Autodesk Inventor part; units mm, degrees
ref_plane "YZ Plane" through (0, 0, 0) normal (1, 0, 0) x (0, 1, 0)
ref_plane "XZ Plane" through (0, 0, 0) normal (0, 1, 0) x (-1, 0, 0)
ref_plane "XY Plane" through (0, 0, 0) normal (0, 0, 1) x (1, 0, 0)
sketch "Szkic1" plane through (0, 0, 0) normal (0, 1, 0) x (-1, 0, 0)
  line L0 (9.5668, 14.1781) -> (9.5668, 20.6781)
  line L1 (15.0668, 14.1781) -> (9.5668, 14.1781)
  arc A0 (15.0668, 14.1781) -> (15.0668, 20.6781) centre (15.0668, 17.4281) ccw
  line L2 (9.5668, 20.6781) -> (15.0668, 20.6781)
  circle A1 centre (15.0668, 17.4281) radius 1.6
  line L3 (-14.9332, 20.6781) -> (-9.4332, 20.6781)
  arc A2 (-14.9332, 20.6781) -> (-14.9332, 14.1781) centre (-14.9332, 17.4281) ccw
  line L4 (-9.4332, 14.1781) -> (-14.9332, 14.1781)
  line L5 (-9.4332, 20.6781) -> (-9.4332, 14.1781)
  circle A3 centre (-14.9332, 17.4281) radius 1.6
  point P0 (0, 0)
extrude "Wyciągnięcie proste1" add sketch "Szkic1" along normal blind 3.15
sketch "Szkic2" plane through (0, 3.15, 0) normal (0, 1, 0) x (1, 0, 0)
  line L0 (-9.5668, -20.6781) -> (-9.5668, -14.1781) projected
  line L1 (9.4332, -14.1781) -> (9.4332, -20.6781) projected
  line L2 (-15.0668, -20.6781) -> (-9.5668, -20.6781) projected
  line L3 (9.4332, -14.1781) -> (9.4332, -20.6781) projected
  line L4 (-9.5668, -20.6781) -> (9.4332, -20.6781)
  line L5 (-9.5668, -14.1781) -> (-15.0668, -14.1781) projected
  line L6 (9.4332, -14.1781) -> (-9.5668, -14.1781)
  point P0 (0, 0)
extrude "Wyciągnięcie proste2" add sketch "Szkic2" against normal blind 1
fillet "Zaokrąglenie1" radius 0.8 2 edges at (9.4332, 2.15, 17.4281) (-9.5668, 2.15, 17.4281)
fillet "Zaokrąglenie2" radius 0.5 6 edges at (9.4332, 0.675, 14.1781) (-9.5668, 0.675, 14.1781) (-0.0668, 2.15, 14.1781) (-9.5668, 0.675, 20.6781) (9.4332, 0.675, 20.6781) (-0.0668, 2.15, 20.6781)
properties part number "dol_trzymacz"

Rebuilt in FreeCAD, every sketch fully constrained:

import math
import FreeCAD as App
import Part
import Sketcher
from FreeCAD import Vector
Q = App.Units.Quantity


def edges_at(feature, points):
    """Names of the edges that pass closest to the given points."""
    edges = feature.Shape.Edges
    near = lambda p: min(range(len(edges)), key=lambda i: edges[i].distToShape(Part.Vertex(*p))[0])
    return sorted({f"Edge{near(p) + 1}" for p in points})


def add_polygon(sketch, points):
    """Adds a closed chain of lines whose ends are joined by coincident constraints."""
    first, n = sketch.GeometryCount, len(points)
    for a, b in zip(points, points[1:] + points[:1]):
        sketch.addGeometry(Part.LineSegment(App.Vector(*a, 0), App.Vector(*b, 0)), False)
    for i in range(n):
        sketch.addConstraint(Sketcher.Constraint("Coincident", first + i, 2, first + (i + 1) % n, 1))

doc = App.newDocument("Part")
body = doc.addObject("PartDesign::Body", "Body")
body.AllowCompound = True

# Sketch on XZ plane
sketch1 = body.newObject("Sketcher::SketchObject", "Sketch")
sketch1.AttachmentSupport = (doc.getObject("XZ_Plane"), [""])
sketch1.MapMode = "FlatFace"
sketch1.addGeometry([
    Part.LineSegment(Vector(-9.6, 20.7, 0), Vector(-9.6, 14.2, 0)),  # 0
    Part.LineSegment(Vector(-9.6, 14.2, 0), Vector(-15.1, 14.2, 0)),  # 1
    Part.ArcOfCircle(Part.Circle(Vector(-15.1, 17.4, 0), Vector(0, 0, 1), 3.2), math.radians(90), math.radians(270)),  # 2
    Part.LineSegment(Vector(-15.1, 20.7, 0), Vector(-9.6, 20.7, 0)),  # 3
    Part.Circle(Vector(-15.1, 17.4, 0), Vector(0, 0, 1), 1.6),  # 4
    Part.LineSegment(Vector(9.4, 20.7, 0), Vector(14.9, 20.7, 0)),  # 5
    Part.ArcOfCircle(Part.Circle(Vector(14.9, 17.4, 0), Vector(0, 0, 1), 3.2), math.radians(-90), math.radians(90)),  # 6
    Part.LineSegment(Vector(14.9, 14.2, 0), Vector(9.4, 14.2, 0)),  # 7
    Part.LineSegment(Vector(9.4, 14.2, 0), Vector(9.4, 20.7, 0)),  # 8
    Part.Circle(Vector(14.9, 17.4, 0), Vector(0, 0, 1), 1.6),  # 9
], False)
sketch1.addConstraint([
    Sketcher.Constraint("Coincident", 0, 2, 1, 1),
    Sketcher.Constraint("Tangent", 1, 2, 2, 2),
    Sketcher.Constraint("Tangent", 2, 1, 3, 1),
    Sketcher.Constraint("Coincident", 3, 2, 0, 1),
    Sketcher.Constraint("Tangent", 5, 2, 6, 2),
    Sketcher.Constraint("Tangent", 6, 1, 7, 1),
    Sketcher.Constraint("Coincident", 7, 2, 8, 1),
    Sketcher.Constraint("Coincident", 8, 2, 5, 1),
    Sketcher.Constraint("Vertical", 0),
    Sketcher.Constraint("Horizontal", 1),
    Sketcher.Constraint("Horizontal", 3),
    Sketcher.Constraint("Horizontal", 5),
    Sketcher.Constraint("Horizontal", 7),
    Sketcher.Constraint("Vertical", 8),
    Sketcher.Constraint("Coincident", 4, 3, 2, 3),
    Sketcher.Constraint("Coincident", 9, 3, 6, 3),
    Sketcher.Constraint("Equal", 2, 6),
    Sketcher.Constraint("Equal", 4, 9),
    Sketcher.Constraint("Horizontal", 4, 3, 6, 3),
    Sketcher.Constraint("Equal", 3, 5),
    Sketcher.Constraint("Diameter", 4, Q("3.2 mm")),
    Sketcher.Constraint("Radius", 2, Q("3.25 mm")),
    Sketcher.Constraint("DistanceX", 1, 2, 1, 1, Q("5.5 mm")),
    Sketcher.Constraint("DistanceX", 2, 3, 6, 3, Q("30 mm")),
    Sketcher.Constraint("DistanceY", -1, 1, 2, 3, Q("17.428 mm")),
    Sketcher.Constraint("DistanceX", 2, 3, -1, 1, Q("15.0668 mm")),
])
pad1 = body.newObject("PartDesign::Pad", "Pad")
pad1.Profile = sketch1
pad1.Length = 3.15
pad1.Reversed = True

# Sketch on XZ plane
sketch2 = body.newObject("Sketcher::SketchObject", "Sketch001")
sketch2.AttachmentSupport = (doc.getObject("XZ_Plane"), [""])
sketch2.MapMode = "FlatFace"
sketch2.AttachmentOffset = App.Placement(Vector(0, 0, -3.15), App.Rotation())
add_polygon(sketch2, [(-10, 14), (-10, 21), (9, 21), (9, 14)])  # lines 0-3
sketch2.addConstraint([
    Sketcher.Constraint("Vertical", 0),
    Sketcher.Constraint("Horizontal", 1),
    Sketcher.Constraint("Vertical", 2),
    Sketcher.Constraint("Horizontal", 3),
    Sketcher.Constraint("DistanceX", 1, 1, 1, 2, Q("19 mm")),
    Sketcher.Constraint("DistanceY", 0, 1, 0, 2, Q("6.5 mm")),
    Sketcher.Constraint("DistanceY", -1, 1, 0, 2, Q("20.678 mm")),
    Sketcher.Constraint("DistanceX", 0, 2, -1, 1, Q("9.5668 mm")),
])
pad2 = body.newObject("PartDesign::Pad", "Pad001")
pad2.Profile = sketch2
pad2.Length = 1
doc.recompute()

fillet = body.newObject("PartDesign::Fillet", "Fillet")
fillet.Base = (pad2, edges_at(pad2, [(9.433, 2.15, 17.428), (-9.567, 2.15, 17.428)]))
fillet.Radius = 0.8
doc.recompute()

fillet2 = body.newObject("PartDesign::Fillet", "Fillet001")
fillet2.Base = (fillet, edges_at(fillet, [
    (9.433, 0.675, 14.178),
    (-9.567, 0.675, 14.178),
    (-0.067, 2.15, 14.178),
    (-9.567, 0.675, 20.678),
    (9.433, 0.675, 20.678),
    (-0.067, 2.15, 20.678),
]))
fillet2.Radius = 0.5

doc.recompute()
